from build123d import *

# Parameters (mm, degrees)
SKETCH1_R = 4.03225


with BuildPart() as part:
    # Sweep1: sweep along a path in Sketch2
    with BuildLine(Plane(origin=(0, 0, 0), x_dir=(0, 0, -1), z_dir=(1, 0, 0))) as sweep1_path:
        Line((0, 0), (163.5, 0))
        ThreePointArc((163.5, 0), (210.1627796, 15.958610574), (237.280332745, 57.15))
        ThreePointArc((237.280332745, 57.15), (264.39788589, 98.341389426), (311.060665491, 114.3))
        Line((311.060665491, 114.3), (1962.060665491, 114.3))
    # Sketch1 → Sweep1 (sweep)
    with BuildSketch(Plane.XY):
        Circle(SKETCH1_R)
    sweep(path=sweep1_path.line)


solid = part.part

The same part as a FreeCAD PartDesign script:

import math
import FreeCAD as App
import Part
import Sketcher

V = App.Vector
Q = App.Units.Quantity

doc = App.newDocument("Part")
body = doc.addObject("PartDesign::Body", "Body")

sketch1 = body.newObject("Sketcher::SketchObject", "Sketch")
sketch1.AttachmentSupport = (doc.getObject("XY_Plane"), [""])
sketch1.MapMode = "FlatFace"
sketch1.addGeometry(Part.Circle(V(0, 0, 0), V(0, 0, 1), 4), False)
sketch1.addConstraint(Sketcher.Constraint("Coincident", 0, 3, -1, 1))
sketch1.addConstraint(Sketcher.Constraint("Diameter", 0, Q("0.3175 in")))

sketch2 = body.newObject("Sketcher::SketchObject", "Sketch001")
sketch2.AttachmentSupport = (doc.getObject("YZ_Plane"), [""])
sketch2.MapMode = "FlatFace"
sketch2.addGeometry(Part.LineSegment(V(0, 0, 0), V(0, -164, 0)), False)
sketch2.addGeometry(Part.ArcOfCircle(Part.Circle(V(76, -164, 0), V(0, 0, 1), 76), math.radians(180), math.radians(256)), False)
sketch2.addGeometry(Part.ArcOfCircle(Part.Circle(V(38, -311, 0), V(0, 0, 1), 76), math.radians(0), math.radians(76)), False)
sketch2.addGeometry(Part.LineSegment(V(114, -311, 0), V(114, -1962, 0)), False)
sketch2.addConstraint(Sketcher.Constraint("Tangent", 0, 2, 1, 1))
sketch2.addConstraint(Sketcher.Constraint("Tangent", 1, 2, 2, 2))
sketch2.addConstraint(Sketcher.Constraint("Tangent", 2, 1, 3, 1))
sketch2.addConstraint(Sketcher.Constraint("Vertical", 0))
sketch2.addConstraint(Sketcher.Constraint("Vertical", 3))
sketch2.addConstraint(Sketcher.Constraint("Coincident", 0, 1, -1, 1))
sketch2.addConstraint(Sketcher.Constraint("Equal", 1, 2))
sketch2.addConstraint(Sketcher.Constraint("Radius", 1, Q("3 in")))
sketch2.addConstraint(Sketcher.Constraint("DistanceY", 3, 2, 3, 1, Q("65 in")))
sketch2.addConstraint(Sketcher.Constraint("DistanceX", -1, 1, 2, 3, Q("1.5 in")))
sketch2.addConstraint(Sketcher.Constraint("DistanceY", 0, 2, 0, 1, Q("163.5 mm")))
doc.recompute()

additivepipe = body.newObject("PartDesign::AdditivePipe", "AdditivePipe")
additivepipe.Profile = sketch1
additivepipe.Spine = (sketch2, ["Edge1", "Edge2", "Edge3", "Edge4"])

doc.recompute()
